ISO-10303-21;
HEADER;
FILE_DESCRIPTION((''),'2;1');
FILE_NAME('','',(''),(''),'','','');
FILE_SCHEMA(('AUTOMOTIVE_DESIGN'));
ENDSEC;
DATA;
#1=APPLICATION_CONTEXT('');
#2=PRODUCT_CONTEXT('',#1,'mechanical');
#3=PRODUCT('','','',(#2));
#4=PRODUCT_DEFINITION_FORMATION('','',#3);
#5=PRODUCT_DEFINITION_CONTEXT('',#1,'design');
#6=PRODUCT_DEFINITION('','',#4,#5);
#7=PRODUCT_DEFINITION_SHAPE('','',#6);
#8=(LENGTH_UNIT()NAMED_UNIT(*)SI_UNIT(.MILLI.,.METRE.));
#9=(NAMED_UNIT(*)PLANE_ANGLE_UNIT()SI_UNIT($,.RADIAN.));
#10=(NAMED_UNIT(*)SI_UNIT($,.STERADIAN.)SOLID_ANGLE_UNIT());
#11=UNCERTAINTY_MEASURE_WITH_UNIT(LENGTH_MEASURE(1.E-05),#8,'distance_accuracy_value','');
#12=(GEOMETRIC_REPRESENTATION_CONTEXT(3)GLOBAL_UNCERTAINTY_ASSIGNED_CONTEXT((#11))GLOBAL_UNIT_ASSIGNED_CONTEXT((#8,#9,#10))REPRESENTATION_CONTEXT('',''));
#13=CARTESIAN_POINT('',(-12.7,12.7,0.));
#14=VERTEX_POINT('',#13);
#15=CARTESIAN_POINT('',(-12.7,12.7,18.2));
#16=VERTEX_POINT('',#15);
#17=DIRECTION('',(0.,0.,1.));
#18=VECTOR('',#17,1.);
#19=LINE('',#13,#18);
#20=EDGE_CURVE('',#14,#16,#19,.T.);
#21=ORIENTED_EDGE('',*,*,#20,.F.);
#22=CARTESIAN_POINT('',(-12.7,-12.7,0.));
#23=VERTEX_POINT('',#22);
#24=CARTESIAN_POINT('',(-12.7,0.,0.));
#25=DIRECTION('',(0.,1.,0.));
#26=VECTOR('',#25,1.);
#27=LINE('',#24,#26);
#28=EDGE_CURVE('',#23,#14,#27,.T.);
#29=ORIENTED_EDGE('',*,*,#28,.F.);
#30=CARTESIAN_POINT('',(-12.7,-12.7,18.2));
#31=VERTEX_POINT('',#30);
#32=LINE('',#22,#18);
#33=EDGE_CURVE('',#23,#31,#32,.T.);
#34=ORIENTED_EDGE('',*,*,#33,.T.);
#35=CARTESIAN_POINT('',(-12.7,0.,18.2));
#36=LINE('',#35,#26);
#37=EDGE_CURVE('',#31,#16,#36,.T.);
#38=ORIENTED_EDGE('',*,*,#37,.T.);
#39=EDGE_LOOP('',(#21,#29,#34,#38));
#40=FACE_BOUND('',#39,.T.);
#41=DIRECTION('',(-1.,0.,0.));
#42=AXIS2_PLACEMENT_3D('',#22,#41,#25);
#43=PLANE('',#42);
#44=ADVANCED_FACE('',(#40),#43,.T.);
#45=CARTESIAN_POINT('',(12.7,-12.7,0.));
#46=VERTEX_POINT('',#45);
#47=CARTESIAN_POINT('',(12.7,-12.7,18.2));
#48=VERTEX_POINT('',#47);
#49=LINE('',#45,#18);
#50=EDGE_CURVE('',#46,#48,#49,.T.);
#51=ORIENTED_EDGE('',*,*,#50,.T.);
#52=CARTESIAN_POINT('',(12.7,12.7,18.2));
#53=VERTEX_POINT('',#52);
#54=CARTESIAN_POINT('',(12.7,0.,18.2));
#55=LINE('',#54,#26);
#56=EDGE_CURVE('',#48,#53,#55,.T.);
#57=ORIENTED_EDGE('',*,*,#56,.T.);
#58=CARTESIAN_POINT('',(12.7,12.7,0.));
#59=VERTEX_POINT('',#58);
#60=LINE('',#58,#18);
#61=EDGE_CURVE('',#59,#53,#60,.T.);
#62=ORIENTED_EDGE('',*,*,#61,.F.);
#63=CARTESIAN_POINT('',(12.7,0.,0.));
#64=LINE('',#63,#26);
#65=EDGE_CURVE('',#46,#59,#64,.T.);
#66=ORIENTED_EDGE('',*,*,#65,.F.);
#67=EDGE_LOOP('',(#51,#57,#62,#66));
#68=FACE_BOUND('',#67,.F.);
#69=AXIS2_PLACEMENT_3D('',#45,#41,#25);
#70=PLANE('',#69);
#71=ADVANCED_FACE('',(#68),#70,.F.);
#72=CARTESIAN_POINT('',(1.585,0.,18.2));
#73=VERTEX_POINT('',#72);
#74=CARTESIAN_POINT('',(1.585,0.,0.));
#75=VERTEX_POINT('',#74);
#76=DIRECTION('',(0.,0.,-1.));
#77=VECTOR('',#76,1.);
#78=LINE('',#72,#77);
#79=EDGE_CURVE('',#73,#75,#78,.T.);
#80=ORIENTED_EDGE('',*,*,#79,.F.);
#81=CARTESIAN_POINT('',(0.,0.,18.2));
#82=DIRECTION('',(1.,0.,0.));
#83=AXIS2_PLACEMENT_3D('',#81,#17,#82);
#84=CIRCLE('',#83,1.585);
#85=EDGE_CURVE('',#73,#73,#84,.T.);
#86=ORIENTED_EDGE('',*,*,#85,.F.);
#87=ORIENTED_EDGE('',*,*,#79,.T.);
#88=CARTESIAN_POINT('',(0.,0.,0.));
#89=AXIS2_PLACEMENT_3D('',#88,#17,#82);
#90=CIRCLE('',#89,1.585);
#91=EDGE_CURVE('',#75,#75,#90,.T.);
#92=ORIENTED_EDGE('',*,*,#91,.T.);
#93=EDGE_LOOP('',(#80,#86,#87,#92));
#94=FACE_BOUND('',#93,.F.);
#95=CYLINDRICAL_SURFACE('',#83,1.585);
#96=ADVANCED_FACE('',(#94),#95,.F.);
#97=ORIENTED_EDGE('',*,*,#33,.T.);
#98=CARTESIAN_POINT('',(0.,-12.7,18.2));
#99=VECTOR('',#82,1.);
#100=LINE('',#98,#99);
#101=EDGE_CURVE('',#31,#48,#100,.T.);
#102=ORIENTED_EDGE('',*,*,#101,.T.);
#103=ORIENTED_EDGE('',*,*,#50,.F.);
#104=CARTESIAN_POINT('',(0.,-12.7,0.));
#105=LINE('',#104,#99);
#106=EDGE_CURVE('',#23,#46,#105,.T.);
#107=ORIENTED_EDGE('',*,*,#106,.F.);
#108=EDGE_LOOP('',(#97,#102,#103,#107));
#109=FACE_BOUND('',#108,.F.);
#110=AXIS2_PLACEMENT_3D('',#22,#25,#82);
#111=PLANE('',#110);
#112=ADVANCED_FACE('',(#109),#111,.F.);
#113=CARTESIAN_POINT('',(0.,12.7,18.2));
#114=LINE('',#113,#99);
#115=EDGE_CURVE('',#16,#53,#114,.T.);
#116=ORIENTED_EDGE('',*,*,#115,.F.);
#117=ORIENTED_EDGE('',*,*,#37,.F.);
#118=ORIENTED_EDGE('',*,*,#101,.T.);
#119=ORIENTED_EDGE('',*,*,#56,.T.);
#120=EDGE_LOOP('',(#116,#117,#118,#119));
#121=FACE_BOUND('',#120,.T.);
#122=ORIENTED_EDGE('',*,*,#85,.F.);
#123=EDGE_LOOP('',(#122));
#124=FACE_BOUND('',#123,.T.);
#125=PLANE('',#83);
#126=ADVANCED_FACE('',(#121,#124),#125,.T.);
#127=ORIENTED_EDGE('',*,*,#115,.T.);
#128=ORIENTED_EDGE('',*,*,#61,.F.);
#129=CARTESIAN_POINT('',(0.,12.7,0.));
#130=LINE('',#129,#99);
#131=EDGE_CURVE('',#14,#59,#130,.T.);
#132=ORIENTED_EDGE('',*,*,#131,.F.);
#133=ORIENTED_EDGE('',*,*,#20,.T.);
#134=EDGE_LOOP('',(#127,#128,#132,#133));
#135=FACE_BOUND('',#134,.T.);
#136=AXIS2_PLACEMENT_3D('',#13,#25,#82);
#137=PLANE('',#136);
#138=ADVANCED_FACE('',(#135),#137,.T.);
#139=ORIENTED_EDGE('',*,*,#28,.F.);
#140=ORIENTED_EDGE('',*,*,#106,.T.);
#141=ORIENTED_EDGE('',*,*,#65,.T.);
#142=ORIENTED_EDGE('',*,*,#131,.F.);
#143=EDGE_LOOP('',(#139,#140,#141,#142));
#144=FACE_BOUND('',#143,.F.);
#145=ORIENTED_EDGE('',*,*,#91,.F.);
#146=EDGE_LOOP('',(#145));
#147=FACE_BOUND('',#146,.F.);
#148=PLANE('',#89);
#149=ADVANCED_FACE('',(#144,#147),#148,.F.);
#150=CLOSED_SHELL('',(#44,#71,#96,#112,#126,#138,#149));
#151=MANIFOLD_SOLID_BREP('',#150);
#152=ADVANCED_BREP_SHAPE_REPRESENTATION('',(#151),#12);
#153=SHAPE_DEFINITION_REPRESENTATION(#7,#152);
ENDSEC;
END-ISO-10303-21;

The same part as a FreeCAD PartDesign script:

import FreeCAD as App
import Part
import Sketcher
from FreeCAD import Vector


def add_polygon(sketch, points):
    """Adds a closed chain of lines whose ends are joined by coincident constraints."""
    first, n = sketch.GeometryCount, len(points)
    for a, b in zip(points, points[1:] + points[:1]):
        sketch.addGeometry(Part.LineSegment(App.Vector(*a, 0), App.Vector(*b, 0)), False)
    for i in range(n):
        sketch.addConstraint(Sketcher.Constraint("Coincident", first + i, 2, first + (i + 1) % n, 1))

doc = App.newDocument("Part")
body = doc.addObject("PartDesign::Body", "Body")

# Sketch on XY plane
sketch1 = body.newObject("Sketcher::SketchObject", "Sketch")
sketch1.AttachmentSupport = (doc.getObject("XY_Plane"), [""])
sketch1.MapMode = "FlatFace"
add_polygon(sketch1, [(-12.7, 12.7), (-12.7, -12.7), (12.7, -12.7), (12.7, 12.7)])  # lines 0-3
sketch1.addConstraint(Sketcher.Constraint("Vertical", 0))
sketch1.addConstraint(Sketcher.Constraint("Horizontal", 1))
sketch1.addConstraint(Sketcher.Constraint("Vertical", 2))
sketch1.addConstraint(Sketcher.Constraint("Horizontal", 3))
sketch1.addConstraint(Sketcher.Constraint("Symmetric", 0, 2, 2, 2, -1, 1))
sketch1.addConstraint(Sketcher.Constraint("Equal", 3, 0))
sketch1.addConstraint(Sketcher.Constraint("DistanceX", 1, 1, 1, 2, 25.4))
pad1 = body.newObject("PartDesign::Pad", "Pad")
pad1.Profile = sketch1
pad1.Length = 18.2

# Sketch on XY plane
sketch2 = body.newObject("Sketcher::SketchObject", "Sketch001")
sketch2.AttachmentSupport = (doc.getObject("XY_Plane"), [""])
sketch2.MapMode = "FlatFace"
sketch2.AttachmentOffset = App.Placement(Vector(0, 0, 18.2), App.Rotation())
sketch2.addGeometry(Part.Circle(Vector(0, 0, 0), Vector(0, 0, 1), 1.585), False)
sketch2.addConstraint(Sketcher.Constraint("Coincident", 0, 3, -1, 1))
sketch2.addConstraint(Sketcher.Constraint("Diameter", 0, 3.17))
pocket1 = body.newObject("PartDesign::Pocket", "Pocket")
pocket1.Profile = sketch2
pocket1.Type = "ThroughAll"

doc.recompute()
